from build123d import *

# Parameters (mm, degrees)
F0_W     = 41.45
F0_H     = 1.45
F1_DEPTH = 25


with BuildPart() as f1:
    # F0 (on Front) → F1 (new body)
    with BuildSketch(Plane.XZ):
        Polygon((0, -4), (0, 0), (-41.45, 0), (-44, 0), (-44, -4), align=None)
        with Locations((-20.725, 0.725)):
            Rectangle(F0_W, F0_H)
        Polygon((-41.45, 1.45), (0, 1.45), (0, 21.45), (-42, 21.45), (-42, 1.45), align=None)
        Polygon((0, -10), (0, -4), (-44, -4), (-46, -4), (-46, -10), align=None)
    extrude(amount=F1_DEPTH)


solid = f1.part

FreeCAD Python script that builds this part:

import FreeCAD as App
import Part
import Sketcher
from FreeCAD import Vector


def add_polygon(sketch, points):
    """Adds a closed chain of lines whose ends are joined by coincident constraints."""
    first, n = sketch.GeometryCount, len(points)
    for a, b in zip(points, points[1:] + points[:1]):
        sketch.addGeometry(Part.LineSegment(App.Vector(*a, 0), App.Vector(*b, 0)), False)
    for i in range(n):
        sketch.addConstraint(Sketcher.Constraint("Coincident", first + i, 2, first + (i + 1) % n, 1))

doc = App.newDocument("Part")
body = doc.addObject("PartDesign::Body", "Body")

sketch1 = body.newObject("Sketcher::SketchObject", "Sketch")
sketch1.AttachmentSupport = (doc.getObject("XZ_Plane"), [""])
sketch1.MapMode = "FlatFace"
add_polygon(sketch1, [(0, 21.4), (-42, 21.4), (-42, 1.4), (-41.5, 1.4), (-41.5, 0), (-44, 0), (-44, -4), (-46, -4), (-46, -10), (0, -10)])
sketch1.addConstraint([
    Sketcher.Constraint("Horizontal", 0),
    Sketcher.Constraint("Vertical", 1),
    Sketcher.Constraint("Horizontal", 2),
    Sketcher.Constraint("Vertical", 3),
    Sketcher.Constraint("Horizontal", 4),
    Sketcher.Constraint("Vertical", 5),
    Sketcher.Constraint("Horizontal", 6),
    Sketcher.Constraint("Vertical", 7),
    Sketcher.Constraint("Horizontal", 8),
    Sketcher.Constraint("Vertical", 9),
    Sketcher.Constraint("PointOnObject", 3, 2, -1),
    Sketcher.Constraint("PointOnObject", 8, 2, -2),
    Sketcher.Constraint("DistanceX", 0, 2, 0, 1, 42.0),
    Sketcher.Constraint("DistanceX", 6, 2, 6, 1, 2.0),
    Sketcher.Constraint("DistanceX", 8, 1, 8, 2, 46.0),
    Sketcher.Constraint("DistanceY", 1, 2, 1, 1, 20.0),
    Sketcher.Constraint("DistanceY", 5, 2, 5, 1, 4.0),
    Sketcher.Constraint("DistanceY", 7, 2, 7, 1, 6.0),
    Sketcher.Constraint("DistanceX", 2, 1, 2, 2, 0.55),
    Sketcher.Constraint("DistanceY", 3, 2, 3, 1, 1.45),
])
pad1 = body.newObject("PartDesign::Pad", "Pad")
pad1.Profile = sketch1
pad1.Length = 25

doc.recompute()
